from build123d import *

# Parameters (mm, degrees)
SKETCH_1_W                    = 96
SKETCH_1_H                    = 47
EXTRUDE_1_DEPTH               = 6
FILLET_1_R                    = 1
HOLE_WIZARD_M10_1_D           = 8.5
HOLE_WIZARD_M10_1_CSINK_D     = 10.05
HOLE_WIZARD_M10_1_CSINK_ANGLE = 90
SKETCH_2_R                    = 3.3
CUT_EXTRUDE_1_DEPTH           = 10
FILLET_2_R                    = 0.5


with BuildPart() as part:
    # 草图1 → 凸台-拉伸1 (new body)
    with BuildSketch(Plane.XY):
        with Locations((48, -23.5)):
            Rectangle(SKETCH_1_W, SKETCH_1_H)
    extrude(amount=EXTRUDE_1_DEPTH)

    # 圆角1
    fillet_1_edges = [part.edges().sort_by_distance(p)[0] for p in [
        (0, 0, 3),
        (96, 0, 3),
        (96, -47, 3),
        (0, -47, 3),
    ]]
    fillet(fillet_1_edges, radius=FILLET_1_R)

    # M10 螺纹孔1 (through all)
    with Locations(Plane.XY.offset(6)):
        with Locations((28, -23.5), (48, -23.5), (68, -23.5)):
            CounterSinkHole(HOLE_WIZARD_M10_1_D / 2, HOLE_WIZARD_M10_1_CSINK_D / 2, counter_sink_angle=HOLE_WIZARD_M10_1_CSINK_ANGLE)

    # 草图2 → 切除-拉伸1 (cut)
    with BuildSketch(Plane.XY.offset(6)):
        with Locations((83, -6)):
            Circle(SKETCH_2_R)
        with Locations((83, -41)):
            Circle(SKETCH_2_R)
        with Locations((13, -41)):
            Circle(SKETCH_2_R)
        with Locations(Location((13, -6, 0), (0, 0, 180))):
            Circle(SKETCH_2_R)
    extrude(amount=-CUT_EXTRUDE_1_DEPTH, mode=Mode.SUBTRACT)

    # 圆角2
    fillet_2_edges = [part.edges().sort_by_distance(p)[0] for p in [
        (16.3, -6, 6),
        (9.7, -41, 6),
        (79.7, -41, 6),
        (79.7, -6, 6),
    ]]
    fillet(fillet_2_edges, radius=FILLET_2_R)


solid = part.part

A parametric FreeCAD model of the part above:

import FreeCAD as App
import Part
import Sketcher

V = App.Vector
Q = App.Units.Quantity


def edges_at(feature, points):
    """Names of the edges that pass closest to the given points."""
    edges = feature.Shape.Edges
    near = lambda p: min(range(len(edges)), key=lambda i: edges[i].distToShape(Part.Vertex(*p))[0])
    return sorted({f"Edge{near(p) + 1}" for p in points})

doc = App.newDocument("Part")
body = doc.addObject("PartDesign::Body", "Body")

sketch1 = body.newObject("Sketcher::SketchObject", "Sketch")
sketch1.AttachmentSupport = (doc.getObject("XY_Plane"), [""])
sketch1.MapMode = "FlatFace"
sketch1.addGeometry(Part.LineSegment(V(0, 0, 0), V(0, -47, 0)), False)
sketch1.addGeometry(Part.LineSegment(V(0, -47, 0), V(96, -47, 0)), False)
sketch1.addGeometry(Part.LineSegment(V(96, -47, 0), V(96, 0, 0)), False)
sketch1.addGeometry(Part.LineSegment(V(96, 0, 0), V(0, 0, 0)), False)
sketch1.addConstraint(Sketcher.Constraint("Coincident", 0, 2, 1, 1))
sketch1.addConstraint(Sketcher.Constraint("Coincident", 1, 2, 2, 1))
sketch1.addConstraint(Sketcher.Constraint("Coincident", 2, 2, 3, 1))
sketch1.addConstraint(Sketcher.Constraint("Coincident", 3, 2, 0, 1))
sketch1.addConstraint(Sketcher.Constraint("Vertical", 0))
sketch1.addConstraint(Sketcher.Constraint("Horizontal", 1))
sketch1.addConstraint(Sketcher.Constraint("Vertical", 2))
sketch1.addConstraint(Sketcher.Constraint("Horizontal", 3))
sketch1.addConstraint(Sketcher.Constraint("Coincident", 3, 2, -1, 1))
sketch1.addConstraint(Sketcher.Constraint("DistanceX", 1, 1, 1, 2, Q("96 mm")))
sketch1.addConstraint(Sketcher.Constraint("DistanceY", 0, 2, 0, 1, Q("47 mm")))
pad1 = body.newObject("PartDesign::Pad", "Pad")
pad1.Profile = sketch1
pad1.Length = 6
doc.recompute()

fillet = body.newObject("PartDesign::Fillet", "Fillet")
fillet.Base = (pad1, edges_at(pad1, [
    (0, 0, 3),
    (96, 0, 3),
    (96, -47, 3),
    (0, -47, 3),
]))
fillet.Radius = 1

sketch2 = body.newObject("Sketcher::SketchObject", "Sketch001")
sketch2.AttachmentSupport = (doc.getObject("XY_Plane"), [""])
sketch2.MapMode = "FlatFace"
sketch2.AttachmentOffset = App.Placement(V(0, 0, 6), App.Rotation())
sketch2.addGeometry(Part.Circle(V(28, -23.5, 0), V(0, 0, 1), 4.2), False)
sketch2.addGeometry(Part.Circle(V(48, -23.5, 0), V(0, 0, 1), 4.2), False)
sketch2.addGeometry(Part.Circle(V(68, -23.5, 0), V(0, 0, 1), 4.2), False)
sketch2.addConstraint(Sketcher.Constraint("Equal", 0, 1))
sketch2.addConstraint(Sketcher.Constraint("Equal", 1, 2))
sketch2.addConstraint(Sketcher.Constraint("Horizontal", 0, 3, 1, 3))
sketch2.addConstraint(Sketcher.Constraint("Horizontal", 1, 3, 2, 3))
sketch2.addConstraint(Sketcher.Constraint("Diameter", 0, Q("8.5 mm")))
sketch2.addConstraint(Sketcher.Constraint("DistanceX", -1, 1, 0, 3, Q("28 mm")))
sketch2.addConstraint(Sketcher.Constraint("DistanceX", -1, 1, 1, 3, Q("48 mm")))
sketch2.addConstraint(Sketcher.Constraint("DistanceX", -1, 1, 2, 3, Q("68 mm")))
sketch2.addConstraint(Sketcher.Constraint("DistanceY", 0, 3, -1, 1, Q("23.5 mm")))
doc.recompute()
hole = body.newObject("PartDesign::Hole", "Hole")
hole.Profile = sketch2
hole.ThreadType = "None"
hole.Diameter = 8.5
hole.DepthType = "ThroughAll"
hole.HoleCutType = "Countersink"
hole.HoleCutDiameter = 10.05
hole.HoleCutCountersinkAngle = 90

sketch3 = body.newObject("Sketcher::SketchObject", "Sketch002")
sketch3.AttachmentSupport = (doc.getObject("XY_Plane"), [""])
sketch3.MapMode = "FlatFace"
sketch3.AttachmentOffset = App.Placement(V(0, 0, 6), App.Rotation())
sketch3.addGeometry(Part.Circle(V(83, -6, 0), V(0, 0, 1), 3.3), False)
sketch3.addGeometry(Part.Circle(V(83, -41, 0), V(0, 0, 1), 3.3), False)
sketch3.addGeometry(Part.Circle(V(13, -41, 0), V(0, 0, 1), 3.3), False)
sketch3.addGeometry(Part.Circle(V(13, -6, 0), V(0, 0, 1), 3.3), False)
sketch3.addConstraint(Sketcher.Constraint("Equal", 0, 1))
sketch3.addConstraint(Sketcher.Constraint("Equal", 1, 2))
sketch3.addConstraint(Sketcher.Constraint("Equal", 2, 3))
sketch3.addConstraint(Sketcher.Constraint("Horizontal", 1, 3, 2, 3))
sketch3.addConstraint(Sketcher.Constraint("Horizontal", 0, 3, 3, 3))
sketch3.addConstraint(Sketcher.Constraint("Vertical", 0, 3, 1, 3))
sketch3.addConstraint(Sketcher.Constraint("Vertical", 2, 3, 3, 3))
sketch3.addConstraint(Sketcher.Constraint("Diameter", 0, Q("6.6 mm")))
sketch3.addConstraint(Sketcher.Constraint("DistanceX", -1, 1, 0, 3, Q("83 mm")))
sketch3.addConstraint(Sketcher.Constraint("DistanceY", 0, 3, -1, 1, Q("6 mm")))
sketch3.addConstraint(Sketcher.Constraint("DistanceY", 1, 3, -1, 1, Q("41 mm")))
sketch3.addConstraint(Sketcher.Constraint("DistanceX", -1, 1, 2, 3, Q("13 mm")))
pocket1 = body.newObject("PartDesign::Pocket", "Pocket")
pocket1.Profile = sketch3
pocket1.Length = 10
doc.recompute()

fillet2 = body.newObject("PartDesign::Fillet", "Fillet001")
fillet2.Base = (pocket1, edges_at(pocket1, [
    (16.3, -6, 6),
    (9.7, -41, 6),
    (79.7, -41, 6),
    (79.7, -6, 6),
]))
fillet2.Radius = 0.5

doc.recompute()
